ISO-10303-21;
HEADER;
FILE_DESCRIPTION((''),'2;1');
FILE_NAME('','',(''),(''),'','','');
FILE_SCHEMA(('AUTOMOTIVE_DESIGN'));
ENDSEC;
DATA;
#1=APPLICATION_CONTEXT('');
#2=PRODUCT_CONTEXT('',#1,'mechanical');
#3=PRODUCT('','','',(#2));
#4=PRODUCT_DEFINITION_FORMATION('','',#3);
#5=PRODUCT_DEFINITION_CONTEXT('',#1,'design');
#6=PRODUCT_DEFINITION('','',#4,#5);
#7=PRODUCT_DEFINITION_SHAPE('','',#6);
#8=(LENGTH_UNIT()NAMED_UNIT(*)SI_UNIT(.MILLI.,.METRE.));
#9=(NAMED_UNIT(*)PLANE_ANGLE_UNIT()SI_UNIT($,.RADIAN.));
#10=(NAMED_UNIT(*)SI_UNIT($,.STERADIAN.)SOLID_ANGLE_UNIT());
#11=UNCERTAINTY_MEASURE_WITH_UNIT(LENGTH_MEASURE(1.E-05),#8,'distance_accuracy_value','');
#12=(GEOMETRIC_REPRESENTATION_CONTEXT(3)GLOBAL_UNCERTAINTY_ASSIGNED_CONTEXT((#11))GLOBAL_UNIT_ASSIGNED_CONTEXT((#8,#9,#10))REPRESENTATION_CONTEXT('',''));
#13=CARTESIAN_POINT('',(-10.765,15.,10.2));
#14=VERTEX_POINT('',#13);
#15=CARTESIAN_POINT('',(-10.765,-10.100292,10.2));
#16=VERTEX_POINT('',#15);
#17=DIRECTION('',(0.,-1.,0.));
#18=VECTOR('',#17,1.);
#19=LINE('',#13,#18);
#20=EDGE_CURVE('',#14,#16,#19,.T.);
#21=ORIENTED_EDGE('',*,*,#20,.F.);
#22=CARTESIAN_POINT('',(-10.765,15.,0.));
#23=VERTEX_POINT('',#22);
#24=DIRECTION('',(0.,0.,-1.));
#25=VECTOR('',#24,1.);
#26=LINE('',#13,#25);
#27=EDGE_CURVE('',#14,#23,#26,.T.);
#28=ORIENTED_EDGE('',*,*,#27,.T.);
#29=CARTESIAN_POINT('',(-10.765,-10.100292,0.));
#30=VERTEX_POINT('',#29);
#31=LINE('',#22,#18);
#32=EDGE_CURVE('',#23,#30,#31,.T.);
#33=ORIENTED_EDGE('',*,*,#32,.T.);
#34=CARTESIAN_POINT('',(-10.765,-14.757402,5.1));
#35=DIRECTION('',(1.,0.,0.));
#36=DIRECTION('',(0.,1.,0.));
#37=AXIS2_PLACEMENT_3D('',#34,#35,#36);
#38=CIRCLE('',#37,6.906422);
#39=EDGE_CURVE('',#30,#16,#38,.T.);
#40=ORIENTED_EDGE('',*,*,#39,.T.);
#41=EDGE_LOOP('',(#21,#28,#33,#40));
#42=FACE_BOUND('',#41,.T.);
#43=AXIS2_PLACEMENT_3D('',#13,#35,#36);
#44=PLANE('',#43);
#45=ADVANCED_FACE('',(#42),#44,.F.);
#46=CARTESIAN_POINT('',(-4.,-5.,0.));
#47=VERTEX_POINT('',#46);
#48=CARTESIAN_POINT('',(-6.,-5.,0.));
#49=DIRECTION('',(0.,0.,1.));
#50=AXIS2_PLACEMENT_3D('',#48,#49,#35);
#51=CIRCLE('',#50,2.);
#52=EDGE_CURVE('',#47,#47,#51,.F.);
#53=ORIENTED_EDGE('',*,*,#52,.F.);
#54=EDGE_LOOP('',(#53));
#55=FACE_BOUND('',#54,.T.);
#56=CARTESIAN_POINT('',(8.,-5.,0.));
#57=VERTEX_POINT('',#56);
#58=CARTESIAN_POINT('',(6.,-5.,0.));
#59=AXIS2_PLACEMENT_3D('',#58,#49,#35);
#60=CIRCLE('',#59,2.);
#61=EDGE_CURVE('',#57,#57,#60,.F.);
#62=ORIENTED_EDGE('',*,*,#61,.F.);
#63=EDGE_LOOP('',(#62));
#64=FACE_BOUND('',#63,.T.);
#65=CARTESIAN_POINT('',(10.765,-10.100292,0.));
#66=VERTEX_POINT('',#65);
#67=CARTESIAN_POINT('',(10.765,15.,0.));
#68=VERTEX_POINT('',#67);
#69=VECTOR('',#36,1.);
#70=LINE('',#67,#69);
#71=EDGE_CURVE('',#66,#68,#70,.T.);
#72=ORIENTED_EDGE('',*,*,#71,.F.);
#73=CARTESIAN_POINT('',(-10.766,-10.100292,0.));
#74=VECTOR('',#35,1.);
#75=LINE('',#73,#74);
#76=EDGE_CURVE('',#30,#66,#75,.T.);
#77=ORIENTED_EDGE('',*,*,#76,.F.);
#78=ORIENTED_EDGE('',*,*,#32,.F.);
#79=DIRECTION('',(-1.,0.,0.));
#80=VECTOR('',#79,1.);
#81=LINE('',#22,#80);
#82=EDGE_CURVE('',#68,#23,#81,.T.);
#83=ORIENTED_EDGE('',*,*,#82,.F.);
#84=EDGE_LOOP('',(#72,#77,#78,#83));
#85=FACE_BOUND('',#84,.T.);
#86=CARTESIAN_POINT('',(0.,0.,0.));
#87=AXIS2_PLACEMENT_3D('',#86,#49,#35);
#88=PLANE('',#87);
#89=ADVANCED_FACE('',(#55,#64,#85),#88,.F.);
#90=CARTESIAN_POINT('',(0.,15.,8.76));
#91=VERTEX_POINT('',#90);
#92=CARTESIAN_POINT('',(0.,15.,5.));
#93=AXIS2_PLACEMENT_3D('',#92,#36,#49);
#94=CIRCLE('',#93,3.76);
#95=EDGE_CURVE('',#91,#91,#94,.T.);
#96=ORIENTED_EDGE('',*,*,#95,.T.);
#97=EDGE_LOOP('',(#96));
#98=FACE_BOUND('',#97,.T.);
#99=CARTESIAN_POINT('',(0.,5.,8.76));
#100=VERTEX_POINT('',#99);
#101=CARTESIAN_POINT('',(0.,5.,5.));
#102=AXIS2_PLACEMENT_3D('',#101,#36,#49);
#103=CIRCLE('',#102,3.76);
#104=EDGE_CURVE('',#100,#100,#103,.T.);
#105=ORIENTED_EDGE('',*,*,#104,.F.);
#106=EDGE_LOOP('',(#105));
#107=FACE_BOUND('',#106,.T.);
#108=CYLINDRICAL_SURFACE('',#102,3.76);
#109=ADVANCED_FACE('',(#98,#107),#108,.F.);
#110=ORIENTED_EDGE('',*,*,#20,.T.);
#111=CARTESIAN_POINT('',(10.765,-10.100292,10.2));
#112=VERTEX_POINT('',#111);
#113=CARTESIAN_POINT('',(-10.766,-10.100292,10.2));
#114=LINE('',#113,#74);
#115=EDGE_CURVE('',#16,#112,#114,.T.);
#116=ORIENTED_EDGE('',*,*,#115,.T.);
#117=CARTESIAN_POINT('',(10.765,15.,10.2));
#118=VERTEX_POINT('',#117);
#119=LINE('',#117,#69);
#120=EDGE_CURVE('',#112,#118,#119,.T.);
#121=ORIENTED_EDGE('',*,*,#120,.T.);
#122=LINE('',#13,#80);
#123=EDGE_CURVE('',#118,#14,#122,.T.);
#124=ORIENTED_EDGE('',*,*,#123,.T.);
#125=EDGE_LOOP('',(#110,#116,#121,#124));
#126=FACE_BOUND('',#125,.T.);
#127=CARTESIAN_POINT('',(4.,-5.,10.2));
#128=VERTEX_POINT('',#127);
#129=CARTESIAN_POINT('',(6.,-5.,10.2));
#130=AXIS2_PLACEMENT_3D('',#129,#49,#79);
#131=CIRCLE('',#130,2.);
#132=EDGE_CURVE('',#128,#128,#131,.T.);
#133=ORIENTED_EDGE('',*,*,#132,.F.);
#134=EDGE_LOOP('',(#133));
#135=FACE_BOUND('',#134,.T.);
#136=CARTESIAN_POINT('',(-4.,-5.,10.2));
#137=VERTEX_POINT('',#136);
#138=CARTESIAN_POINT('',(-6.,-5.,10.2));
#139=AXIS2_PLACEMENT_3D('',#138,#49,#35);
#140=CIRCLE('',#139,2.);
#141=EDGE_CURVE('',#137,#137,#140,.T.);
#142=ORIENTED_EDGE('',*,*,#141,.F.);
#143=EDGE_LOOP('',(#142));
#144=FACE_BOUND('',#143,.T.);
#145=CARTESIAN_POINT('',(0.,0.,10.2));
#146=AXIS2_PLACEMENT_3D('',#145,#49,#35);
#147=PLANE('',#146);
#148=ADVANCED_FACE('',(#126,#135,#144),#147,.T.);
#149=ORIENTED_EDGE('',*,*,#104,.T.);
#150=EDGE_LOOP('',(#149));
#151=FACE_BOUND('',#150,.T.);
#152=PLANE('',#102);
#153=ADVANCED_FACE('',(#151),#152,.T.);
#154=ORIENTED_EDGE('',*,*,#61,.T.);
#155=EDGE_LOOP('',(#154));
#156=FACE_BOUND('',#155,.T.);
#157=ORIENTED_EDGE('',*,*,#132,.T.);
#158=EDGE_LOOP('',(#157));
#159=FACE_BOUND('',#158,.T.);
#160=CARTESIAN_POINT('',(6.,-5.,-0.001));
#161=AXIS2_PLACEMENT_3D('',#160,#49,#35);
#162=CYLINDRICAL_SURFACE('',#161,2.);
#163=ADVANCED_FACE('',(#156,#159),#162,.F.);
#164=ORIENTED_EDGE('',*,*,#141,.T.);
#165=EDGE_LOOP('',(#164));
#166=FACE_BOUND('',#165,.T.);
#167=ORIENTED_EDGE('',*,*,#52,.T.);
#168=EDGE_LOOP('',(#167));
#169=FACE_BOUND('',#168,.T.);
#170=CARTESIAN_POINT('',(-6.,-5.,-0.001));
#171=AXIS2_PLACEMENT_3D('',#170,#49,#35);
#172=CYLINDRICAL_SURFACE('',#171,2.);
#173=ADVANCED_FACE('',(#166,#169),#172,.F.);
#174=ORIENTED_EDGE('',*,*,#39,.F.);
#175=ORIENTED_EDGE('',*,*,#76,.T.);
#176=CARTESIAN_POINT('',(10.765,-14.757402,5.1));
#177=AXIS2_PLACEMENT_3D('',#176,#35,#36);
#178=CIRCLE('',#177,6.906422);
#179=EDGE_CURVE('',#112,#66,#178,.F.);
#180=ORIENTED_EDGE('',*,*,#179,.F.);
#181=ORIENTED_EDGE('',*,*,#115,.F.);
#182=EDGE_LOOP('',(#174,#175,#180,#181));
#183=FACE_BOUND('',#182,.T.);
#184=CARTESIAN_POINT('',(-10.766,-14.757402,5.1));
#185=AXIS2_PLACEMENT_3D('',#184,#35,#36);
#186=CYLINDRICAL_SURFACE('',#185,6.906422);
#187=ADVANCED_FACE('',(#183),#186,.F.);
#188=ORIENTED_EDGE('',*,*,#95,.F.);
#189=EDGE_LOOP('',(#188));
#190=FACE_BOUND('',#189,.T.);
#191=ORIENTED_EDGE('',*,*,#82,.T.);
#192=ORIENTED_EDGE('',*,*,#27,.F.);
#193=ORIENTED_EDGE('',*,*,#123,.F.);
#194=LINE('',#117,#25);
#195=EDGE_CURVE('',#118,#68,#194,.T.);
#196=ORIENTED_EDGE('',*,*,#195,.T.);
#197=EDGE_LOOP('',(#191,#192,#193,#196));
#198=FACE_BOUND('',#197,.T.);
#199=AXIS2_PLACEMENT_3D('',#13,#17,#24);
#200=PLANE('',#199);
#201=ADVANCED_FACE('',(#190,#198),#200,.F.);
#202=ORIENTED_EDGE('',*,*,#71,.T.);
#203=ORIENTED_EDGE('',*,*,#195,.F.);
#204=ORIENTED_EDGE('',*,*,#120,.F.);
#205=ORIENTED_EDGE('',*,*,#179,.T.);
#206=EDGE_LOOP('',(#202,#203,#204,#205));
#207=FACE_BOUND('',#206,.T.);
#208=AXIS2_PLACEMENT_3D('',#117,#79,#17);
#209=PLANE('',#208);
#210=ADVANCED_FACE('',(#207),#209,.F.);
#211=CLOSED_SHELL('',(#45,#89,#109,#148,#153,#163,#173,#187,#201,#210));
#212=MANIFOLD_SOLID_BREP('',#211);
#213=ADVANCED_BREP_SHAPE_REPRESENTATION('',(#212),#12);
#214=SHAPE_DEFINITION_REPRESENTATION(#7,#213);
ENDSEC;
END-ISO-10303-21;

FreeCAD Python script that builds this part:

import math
import FreeCAD as App
import Part
import Sketcher


def add_polygon(sketch, points):
    """Adds a closed chain of lines whose ends are joined by coincident constraints."""
    first, n = sketch.GeometryCount, len(points)
    for a, b in zip(points, points[1:] + points[:1]):
        sketch.addGeometry(Part.LineSegment(App.Vector(*a, 0), App.Vector(*b, 0)), False)
    for i in range(n):
        sketch.addConstraint(Sketcher.Constraint("Coincident", first + i, 2, first + (i + 1) % n, 1))

doc = App.newDocument("Part")
body = doc.addObject("PartDesign::Body", "Body")
body.AllowCompound = True

# Sketch on XY plane
sketch1 = doc.addObject("Sketcher::SketchObject", "Sketch")
body.addObject(sketch1)
sketch1.AttachmentSupport = (doc.XY_Plane, [""])
sketch1.MapMode = "FlatFace"
add_polygon(sketch1, [(-11, 15), (-11, -15), (11, -15), (11, 15)])  # lines 0-3
sketch1.addConstraint([
    Sketcher.Constraint("Vertical", 0),
    Sketcher.Constraint("Horizontal", 1),
    Sketcher.Constraint("Vertical", 2),
    Sketcher.Constraint("Horizontal", 3),
    Sketcher.Constraint("Symmetric", 0, 2, 2, 2, -1, 1),
    Sketcher.Constraint("DistanceY", 0, 2, 0, 1, 30.0),
    Sketcher.Constraint("DistanceX", 1, 1, 1, 2, 21.53),
])
pad1 = doc.addObject("PartDesign::Pad", "Pad")
body.addObject(pad1)
pad1.Profile = sketch1
pad1.Length = 10.2

# Sketch on XZ plane
sketch2 = doc.addObject("Sketcher::SketchObject", "Sketch001")
body.addObject(sketch2)
sketch2.AttachmentSupport = (doc.XZ_Plane, [""])
sketch2.MapMode = "FlatFace"
sketch2.AttachmentOffset = App.Placement(App.Vector(0, 0, -15), App.Rotation())
sketch2.addGeometry(Part.Circle(App.Vector(0, 5, 0), App.Vector(0, 0, 1), 3.8), False)
sketch2.addConstraint([
    Sketcher.Constraint("PointOnObject", 0, 3, -2),
    Sketcher.Constraint("Diameter", 0, 7.52),
    Sketcher.Constraint("DistanceY", -1, 1, 0, 3, 5.0),
])
pocket1 = doc.addObject("PartDesign::Pocket", "Pocket")
body.addObject(pocket1)
pocket1.Profile = sketch2
pocket1.Length = 10
pocket1.Reversed = True

# Sketch on YZ plane
sketch3 = doc.addObject("Sketcher::SketchObject", "Sketch002")
body.addObject(sketch3)
sketch3.AttachmentSupport = (doc.YZ_Plane, [""])
sketch3.MapMode = "FlatFace"
sketch3.AttachmentOffset = App.Placement(App.Vector(0, 0, 10.765), App.Rotation())
sketch3.addGeometry([
    Part.ArcOfCircle(Part.Circle(App.Vector(-15, 5, 0), App.Vector(0, 0, 1), 7), math.radians(-48), math.radians(48)),
    Part.LineSegment(App.Vector(-10, 10, 0), App.Vector(-10, 0, 0)),
], False)
sketch3.addConstraint([
    Sketcher.Constraint("Coincident", 0, 1, 1, 2),
    Sketcher.Constraint("Coincident", 1, 1, 0, 2),
    Sketcher.Constraint("Vertical", 1),
    Sketcher.Constraint("PointOnObject", 0, 1, -1),
    Sketcher.Constraint("DistanceY", 1, 2, 1, 1, 10.2),
    Sketcher.Constraint("Radius", 0, 6.906422),
    Sketcher.Constraint("DistanceX", 0, 3, -1, 1, 14.757402),
])
pocket2 = doc.addObject("PartDesign::Pocket", "Pocket001")
body.addObject(pocket2)
pocket2.Profile = sketch3
pocket2.Type = "UpToFirst"

# Sketch on YZ plane
sketch4 = doc.addObject("Sketcher::SketchObject", "Sketch003")
body.addObject(sketch4)
sketch4.AttachmentSupport = (doc.YZ_Plane, [""])
sketch4.MapMode = "FlatFace"
sketch4.AttachmentOffset = App.Placement(App.Vector(0, 0, 10.765), App.Rotation())
add_polygon(sketch4, [(-10.1, 10.2), (-15, 10.2), (-15, 0), (-10.1, 0)])  # lines 0-3
sketch4.addConstraint([
    Sketcher.Constraint("Horizontal", 0),
    Sketcher.Constraint("Vertical", 1),
    Sketcher.Constraint("Horizontal", 2),
    Sketcher.Constraint("Vertical", 3),
    Sketcher.Constraint("PointOnObject", 1, 2, -1),
    Sketcher.Constraint("DistanceY", 1, 2, 1, 1, 10.2),
    Sketcher.Constraint("DistanceX", 0, 2, -1, 1, 15.0),
    Sketcher.Constraint("DistanceX", 0, 2, 0, 1, 4.899708),
])
pocket3 = doc.addObject("PartDesign::Pocket", "Pocket002")
body.addObject(pocket3)
pocket3.Profile = sketch4
pocket3.Type = "UpToFirst"

# Sketch on XY plane
sketch5 = doc.addObject("Sketcher::SketchObject", "Sketch004")
body.addObject(sketch5)
sketch5.AttachmentSupport = (doc.XY_Plane, [""])
sketch5.MapMode = "FlatFace"
sketch5.AttachmentOffset = App.Placement(App.Vector(0, 0, 10.2), App.Rotation())
sketch5.addGeometry(Part.Circle(App.Vector(-6, -5, 0), App.Vector(0, 0, 1), 2), False)
sketch5.addConstraint([
    Sketcher.Constraint("Diameter", 0, 4.0),
    Sketcher.Constraint("DistanceX", 0, 3, -1, 1, 6.0),
    Sketcher.Constraint("DistanceY", 0, 3, -1, 1, 5.0),
])
pocket4 = doc.addObject("PartDesign::Pocket", "Pocket003")
body.addObject(pocket4)
pocket4.Profile = sketch5
pocket4.Type = "UpToFirst"

# Sketch on XY plane
sketch6 = doc.addObject("Sketcher::SketchObject", "Sketch005")
body.addObject(sketch6)
sketch6.AttachmentSupport = (doc.XY_Plane, [""])
sketch6.MapMode = "FlatFace"
sketch6.AttachmentOffset = App.Placement(App.Vector(0, 0, 10.2), App.Rotation())
sketch6.addGeometry(Part.Circle(App.Vector(6, -5, 0), App.Vector(0, 0, 1), 2), False)
sketch6.addConstraint([
    Sketcher.Constraint("Diameter", 0, 4.0),
    Sketcher.Constraint("DistanceX", -1, 1, 0, 3, 6.0),
    Sketcher.Constraint("DistanceY", 0, 3, -1, 1, 5.0),
])
pocket5 = doc.addObject("PartDesign::Pocket", "Pocket004")
body.addObject(pocket5)
pocket5.Profile = sketch6
pocket5.Type = "UpToFirst"

doc.recompute()
